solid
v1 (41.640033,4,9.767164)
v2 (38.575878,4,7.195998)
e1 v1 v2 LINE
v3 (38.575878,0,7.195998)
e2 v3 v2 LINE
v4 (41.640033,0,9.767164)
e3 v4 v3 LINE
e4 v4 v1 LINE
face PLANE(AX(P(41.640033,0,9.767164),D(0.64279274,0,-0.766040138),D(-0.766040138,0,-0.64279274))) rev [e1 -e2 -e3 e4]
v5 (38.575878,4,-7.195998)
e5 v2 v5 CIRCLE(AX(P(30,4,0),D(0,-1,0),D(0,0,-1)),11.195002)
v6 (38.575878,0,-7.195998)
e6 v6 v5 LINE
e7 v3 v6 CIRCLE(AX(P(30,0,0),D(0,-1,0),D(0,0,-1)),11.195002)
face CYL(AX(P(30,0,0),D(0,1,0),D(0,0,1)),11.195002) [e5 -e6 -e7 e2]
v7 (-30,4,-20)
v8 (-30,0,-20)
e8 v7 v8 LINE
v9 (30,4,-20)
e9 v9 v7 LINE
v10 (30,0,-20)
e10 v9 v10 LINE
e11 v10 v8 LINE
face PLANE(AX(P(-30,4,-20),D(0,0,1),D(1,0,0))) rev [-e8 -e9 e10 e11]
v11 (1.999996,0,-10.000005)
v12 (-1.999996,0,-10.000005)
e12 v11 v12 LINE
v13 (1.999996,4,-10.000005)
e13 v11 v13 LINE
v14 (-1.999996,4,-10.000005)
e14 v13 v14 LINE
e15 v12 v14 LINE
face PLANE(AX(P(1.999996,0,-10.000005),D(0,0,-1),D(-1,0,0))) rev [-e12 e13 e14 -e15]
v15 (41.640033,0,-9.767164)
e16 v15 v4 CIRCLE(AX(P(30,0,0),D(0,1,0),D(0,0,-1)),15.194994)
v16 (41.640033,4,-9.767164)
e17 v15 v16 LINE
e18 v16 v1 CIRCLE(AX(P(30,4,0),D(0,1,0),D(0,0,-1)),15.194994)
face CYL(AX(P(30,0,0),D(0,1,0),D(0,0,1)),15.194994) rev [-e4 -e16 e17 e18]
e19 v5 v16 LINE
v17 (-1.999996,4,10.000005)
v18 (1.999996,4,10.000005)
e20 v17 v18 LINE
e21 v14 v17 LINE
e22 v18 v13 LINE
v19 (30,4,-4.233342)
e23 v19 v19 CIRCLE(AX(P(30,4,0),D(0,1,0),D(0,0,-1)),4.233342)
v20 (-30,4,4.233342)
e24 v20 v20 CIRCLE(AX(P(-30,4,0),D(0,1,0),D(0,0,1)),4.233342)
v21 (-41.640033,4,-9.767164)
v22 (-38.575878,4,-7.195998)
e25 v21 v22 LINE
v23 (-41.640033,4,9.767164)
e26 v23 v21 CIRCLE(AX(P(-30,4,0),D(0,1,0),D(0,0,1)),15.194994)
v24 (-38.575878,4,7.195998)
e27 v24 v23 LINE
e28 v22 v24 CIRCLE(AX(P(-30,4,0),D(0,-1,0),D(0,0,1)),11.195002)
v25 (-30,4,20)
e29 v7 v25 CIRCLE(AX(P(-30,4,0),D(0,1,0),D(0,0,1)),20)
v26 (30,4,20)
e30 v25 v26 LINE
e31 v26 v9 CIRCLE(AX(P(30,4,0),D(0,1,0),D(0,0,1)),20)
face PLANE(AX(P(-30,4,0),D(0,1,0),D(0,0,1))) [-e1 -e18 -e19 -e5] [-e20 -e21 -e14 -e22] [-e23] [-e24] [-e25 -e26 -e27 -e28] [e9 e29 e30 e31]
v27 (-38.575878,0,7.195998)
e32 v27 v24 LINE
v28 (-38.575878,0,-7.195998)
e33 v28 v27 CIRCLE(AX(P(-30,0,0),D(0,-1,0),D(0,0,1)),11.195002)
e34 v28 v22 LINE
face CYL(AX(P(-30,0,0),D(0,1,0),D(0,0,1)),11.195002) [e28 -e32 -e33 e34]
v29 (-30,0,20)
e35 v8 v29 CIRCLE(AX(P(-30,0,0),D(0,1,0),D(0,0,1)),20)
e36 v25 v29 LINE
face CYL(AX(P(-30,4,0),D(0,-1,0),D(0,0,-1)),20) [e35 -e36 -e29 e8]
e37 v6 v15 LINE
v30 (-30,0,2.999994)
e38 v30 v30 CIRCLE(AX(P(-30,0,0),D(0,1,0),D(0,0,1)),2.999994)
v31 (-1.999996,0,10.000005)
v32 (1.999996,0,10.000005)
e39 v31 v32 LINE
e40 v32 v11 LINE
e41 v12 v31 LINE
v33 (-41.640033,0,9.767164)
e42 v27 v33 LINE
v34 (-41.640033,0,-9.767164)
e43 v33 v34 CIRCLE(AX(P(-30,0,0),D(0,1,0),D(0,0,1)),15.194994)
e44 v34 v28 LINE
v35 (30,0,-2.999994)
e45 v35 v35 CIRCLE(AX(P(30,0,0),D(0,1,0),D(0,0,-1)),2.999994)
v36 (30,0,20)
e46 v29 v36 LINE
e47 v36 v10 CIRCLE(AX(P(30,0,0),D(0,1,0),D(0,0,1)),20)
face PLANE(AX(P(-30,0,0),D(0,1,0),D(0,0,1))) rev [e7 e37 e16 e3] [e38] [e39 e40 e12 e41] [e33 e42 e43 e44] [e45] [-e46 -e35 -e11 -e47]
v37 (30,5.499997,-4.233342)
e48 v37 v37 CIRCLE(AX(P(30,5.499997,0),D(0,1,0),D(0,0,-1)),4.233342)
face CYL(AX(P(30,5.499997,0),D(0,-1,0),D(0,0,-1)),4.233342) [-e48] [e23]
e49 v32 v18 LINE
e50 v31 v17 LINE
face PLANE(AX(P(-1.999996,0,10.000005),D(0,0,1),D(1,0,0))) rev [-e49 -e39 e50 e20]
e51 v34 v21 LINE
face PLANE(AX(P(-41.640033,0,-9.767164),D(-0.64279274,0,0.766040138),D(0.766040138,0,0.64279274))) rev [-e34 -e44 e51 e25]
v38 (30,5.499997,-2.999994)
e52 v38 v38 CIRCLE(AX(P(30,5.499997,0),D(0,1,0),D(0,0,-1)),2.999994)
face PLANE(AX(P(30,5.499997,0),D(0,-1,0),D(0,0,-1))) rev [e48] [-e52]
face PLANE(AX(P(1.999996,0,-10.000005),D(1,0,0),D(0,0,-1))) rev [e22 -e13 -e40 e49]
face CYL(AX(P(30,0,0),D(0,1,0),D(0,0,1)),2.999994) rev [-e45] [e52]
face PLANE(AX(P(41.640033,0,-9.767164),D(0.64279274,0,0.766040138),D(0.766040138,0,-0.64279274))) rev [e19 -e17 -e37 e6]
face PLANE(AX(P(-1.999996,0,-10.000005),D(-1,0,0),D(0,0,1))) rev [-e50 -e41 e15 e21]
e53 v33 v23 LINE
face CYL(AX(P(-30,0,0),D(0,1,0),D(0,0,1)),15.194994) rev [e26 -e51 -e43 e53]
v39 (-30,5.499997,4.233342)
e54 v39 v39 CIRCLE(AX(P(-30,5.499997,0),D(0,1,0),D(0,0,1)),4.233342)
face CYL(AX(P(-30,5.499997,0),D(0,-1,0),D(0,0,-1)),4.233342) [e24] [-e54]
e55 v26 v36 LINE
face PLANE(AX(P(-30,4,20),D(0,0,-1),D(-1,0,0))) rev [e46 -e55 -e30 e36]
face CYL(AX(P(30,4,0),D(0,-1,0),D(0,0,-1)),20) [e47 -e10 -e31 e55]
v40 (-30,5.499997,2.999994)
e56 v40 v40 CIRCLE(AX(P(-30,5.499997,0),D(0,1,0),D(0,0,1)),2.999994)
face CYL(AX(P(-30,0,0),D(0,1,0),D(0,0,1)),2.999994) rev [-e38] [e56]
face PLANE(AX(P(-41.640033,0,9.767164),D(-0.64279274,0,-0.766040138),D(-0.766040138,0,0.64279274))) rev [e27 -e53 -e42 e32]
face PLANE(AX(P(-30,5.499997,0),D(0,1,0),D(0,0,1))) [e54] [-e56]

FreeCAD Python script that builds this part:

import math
import FreeCAD as App
import Part
import Sketcher
from FreeCAD import Vector

doc = App.newDocument("Part")
body = doc.addObject("PartDesign::Body", "Body")

# Sketch on XZ plane
sketch1 = doc.addObject("Sketcher::SketchObject", "Sketch")
body.addObject(sketch1)
sketch1.AttachmentSupport = (doc.XZ_Plane, [""])
sketch1.MapMode = "FlatFace"
sketch1.addGeometry(Part.LineSegment(Vector(30, -20, 0), Vector(-30, -20, 0)), False)
sketch1.addGeometry(Part.ArcOfCircle(Part.Circle(Vector(-30, 0, 0), Vector(0, 0, 1), 20), math.radians(90), math.radians(270)), False)
sketch1.addGeometry(Part.LineSegment(Vector(-30, 20, 0), Vector(30, 20, 0)), False)
sketch1.addGeometry(Part.ArcOfCircle(Part.Circle(Vector(30, 0, 0), Vector(0, 0, 1), 20), math.radians(-90), math.radians(90)), False)
sketch1.addConstraint(Sketcher.Constraint("Tangent", 0, 2, 1, 2))
sketch1.addConstraint(Sketcher.Constraint("Tangent", 1, 1, 2, 1))
sketch1.addConstraint(Sketcher.Constraint("Tangent", 2, 2, 3, 2))
sketch1.addConstraint(Sketcher.Constraint("Tangent", 3, 1, 0, 1))
sketch1.addConstraint(Sketcher.Constraint("Horizontal", 0))
sketch1.addConstraint(Sketcher.Constraint("Horizontal", 2))
sketch1.addConstraint(Sketcher.Constraint("Symmetric", 1, 3, 3, 3, -1, 1))
sketch1.addConstraint(Sketcher.Constraint("Radius", 1, 20.0))
sketch1.addConstraint(Sketcher.Constraint("DistanceX", 0, 2, 0, 1, 60.0))
pad1 = doc.addObject("PartDesign::Pad", "Pad")
body.addObject(pad1)
pad1.Profile = sketch1
pad1.Length = 4
pad1.Reversed = True

# Sketch on XZ plane
sketch2 = doc.addObject("Sketcher::SketchObject", "Sketch001")
body.addObject(sketch2)
sketch2.AttachmentSupport = (doc.XZ_Plane, [""])
sketch2.MapMode = "FlatFace"
sketch2.AttachmentOffset = App.Placement(Vector(0, 0, -4), App.Rotation())
sketch2.addGeometry(Part.Circle(Vector(-30, 0, 0), Vector(0, 0, 1), 3), False)
sketch2.addGeometry(Part.Circle(Vector(30, 0, 0), Vector(0, 0, 1), 3), False)
sketch2.addGeometry(Part.LineSegment(Vector(-2, -10, 0), Vector(-2, 10, 0)), False)
sketch2.addGeometry(Part.LineSegment(Vector(-2, 10, 0), Vector(2, 10, 0)), False)
sketch2.addGeometry(Part.LineSegment(Vector(2, 10, 0), Vector(2, -10, 0)), False)
sketch2.addGeometry(Part.LineSegment(Vector(2, -10, 0), Vector(-2, -10, 0)), False)
sketch2.addGeometry(Part.LineSegment(Vector(-41.6, -9.8, 0), Vector(-38.6, -7.2, 0)), False)
sketch2.addGeometry(Part.ArcOfCircle(Part.Circle(Vector(-30, 0, 0), Vector(0, 0, 1), 11.2), math.radians(-140), math.radians(140)), False)
sketch2.addGeometry(Part.LineSegment(Vector(-38.6, 7.2, 0), Vector(-41.6, 9.8, 0)), False)
sketch2.addGeometry(Part.ArcOfCircle(Part.Circle(Vector(-30, 0, 0), Vector(0, 0, 1), 15.2), math.radians(-140), math.radians(140)), False)
sketch2.addGeometry(Part.LineSegment(Vector(41.6, 9.8, 0), Vector(38.6, 7.2, 0)), False)
sketch2.addGeometry(Part.ArcOfCircle(Part.Circle(Vector(30, 0, 0), Vector(0, 0, 1), 11.2), math.radians(40), math.radians(320)), False)
sketch2.addGeometry(Part.LineSegment(Vector(38.6, -7.2, 0), Vector(41.6, -9.8, 0)), False)
sketch2.addGeometry(Part.ArcOfCircle(Part.Circle(Vector(30, 0, 0), Vector(0, 0, 1), 15.2), math.radians(40), math.radians(320)), False)
sketch2.addConstraint(Sketcher.Constraint("Coincident", 2, 2, 3, 1))
sketch2.addConstraint(Sketcher.Constraint("Coincident", 3, 2, 4, 1))
sketch2.addConstraint(Sketcher.Constraint("Coincident", 4, 2, 5, 1))
sketch2.addConstraint(Sketcher.Constraint("Coincident", 5, 2, 2, 1))
sketch2.addConstraint(Sketcher.Constraint("Coincident", 6, 2, 7, 1))
sketch2.addConstraint(Sketcher.Constraint("Coincident", 7, 2, 8, 1))
sketch2.addConstraint(Sketcher.Constraint("Coincident", 8, 2, 9, 2))
sketch2.addConstraint(Sketcher.Constraint("Coincident", 9, 1, 6, 1))
sketch2.addConstraint(Sketcher.Constraint("Coincident", 10, 2, 11, 1))
sketch2.addConstraint(Sketcher.Constraint("Coincident", 11, 2, 12, 1))
sketch2.addConstraint(Sketcher.Constraint("Coincident", 12, 2, 13, 2))
sketch2.addConstraint(Sketcher.Constraint("Coincident", 13, 1, 10, 1))
sketch2.addConstraint(Sketcher.Constraint("Vertical", 2))
sketch2.addConstraint(Sketcher.Constraint("Horizontal", 3))
sketch2.addConstraint(Sketcher.Constraint("Vertical", 4))
sketch2.addConstraint(Sketcher.Constraint("Horizontal", 5))
sketch2.addConstraint(Sketcher.Constraint("Coincident", 7, 3, 0, 3))
sketch2.addConstraint(Sketcher.Constraint("Coincident", 9, 3, 0, 3))
sketch2.addConstraint(Sketcher.Constraint("Coincident", 11, 3, 1, 3))
sketch2.addConstraint(Sketcher.Constraint("Coincident", 13, 3, 1, 3))
sketch2.addConstraint(Sketcher.Constraint("Equal", 0, 1))
sketch2.addConstraint(Sketcher.Constraint("Equal", 7, 11))
sketch2.addConstraint(Sketcher.Constraint("Equal", 9, 13))
sketch2.addConstraint(Sketcher.Constraint("Symmetric", 0, 3, 1, 3, -1, 1))
sketch2.addConstraint(Sketcher.Constraint("Symmetric", 2, 2, 4, 2, -1, 1))
sketch2.addConstraint(Sketcher.Constraint("Symmetric", 7, 2, 10, 2, -2))
sketch2.addConstraint(Sketcher.Constraint("Parallel", 6, 10))
sketch2.addConstraint(Sketcher.Constraint("Parallel", 8, 12))
sketch2.addConstraint(Sketcher.Constraint("Horizontal", 6, 2, 11, 2))
sketch2.addConstraint(Sketcher.Constraint("Horizontal", 9, 1, 12, 2))
sketch2.addConstraint(Sketcher.Constraint("Vertical", 6, 2, 7, 2))
sketch2.addConstraint(Sketcher.Constraint("DistanceX", 0, 3, -1, 1, 30.0))
sketch2.addConstraint(Sketcher.Constraint("Diameter", 0, 5.999988))
sketch2.addConstraint(Sketcher.Constraint("Radius", 7, 11.195002))
sketch2.addConstraint(Sketcher.Constraint("Radius", 9, 15.194994))
sketch2.addConstraint(Sketcher.Constraint("DistanceY", 2, 1, 2, 2, 20.000011))
sketch2.addConstraint(Sketcher.Constraint("DistanceX", 3, 1, 3, 2, 3.999992))
sketch2.addConstraint(Sketcher.Constraint("DistanceX", 6, 2, -1, 1, 38.575878))
sketch2.addConstraint(Sketcher.Constraint("DistanceY", 6, 2, 8, 2, 16.963161))
pocket1 = doc.addObject("PartDesign::Pocket", "Pocket")
body.addObject(pocket1)
pocket1.Profile = sketch2
pocket1.Type = "ThroughAll"
pocket1.Reversed = True

# Sketch on XZ plane
sketch3 = doc.addObject("Sketcher::SketchObject", "Sketch002")
body.addObject(sketch3)
sketch3.AttachmentSupport = (doc.XZ_Plane, [""])
sketch3.MapMode = "FlatFace"
sketch3.AttachmentOffset = App.Placement(Vector(0, 0, -5.499997), App.Rotation())
sketch3.addGeometry(Part.Circle(Vector(-30, 0, 0), Vector(0, 0, 1), 4.2), False)
sketch3.addGeometry(Part.Circle(Vector(-30, 0, 0), Vector(0, 0, 1), 3), False)
sketch3.addGeometry(Part.Circle(Vector(30, 0, 0), Vector(0, 0, 1), 4.2), False)
sketch3.addGeometry(Part.Circle(Vector(30, 0, 0), Vector(0, 0, 1), 3), False)
sketch3.addConstraint(Sketcher.Constraint("Coincident", 1, 3, 0, 3))
sketch3.addConstraint(Sketcher.Constraint("Coincident", 3, 3, 2, 3))
sketch3.addConstraint(Sketcher.Constraint("Equal", 0, 2))
sketch3.addConstraint(Sketcher.Constraint("Equal", 1, 3))
sketch3.addConstraint(Sketcher.Constraint("Symmetric", 0, 3, 2, 3, -1, 1))
sketch3.addConstraint(Sketcher.Constraint("PointOnObject", 0, 3, -1))
sketch3.addConstraint(Sketcher.Constraint("DistanceX", 0, 3, -1, 1, 30.0))
sketch3.addConstraint(Sketcher.Constraint("Diameter", 0, 8.466684))
sketch3.addConstraint(Sketcher.Constraint("Diameter", 1, 5.999988))
pad2 = doc.addObject("PartDesign::Pad", "Pad001")
body.addObject(pad2)
pad2.Profile = sketch3
pad2.Length = 1.499997

doc.recompute()
